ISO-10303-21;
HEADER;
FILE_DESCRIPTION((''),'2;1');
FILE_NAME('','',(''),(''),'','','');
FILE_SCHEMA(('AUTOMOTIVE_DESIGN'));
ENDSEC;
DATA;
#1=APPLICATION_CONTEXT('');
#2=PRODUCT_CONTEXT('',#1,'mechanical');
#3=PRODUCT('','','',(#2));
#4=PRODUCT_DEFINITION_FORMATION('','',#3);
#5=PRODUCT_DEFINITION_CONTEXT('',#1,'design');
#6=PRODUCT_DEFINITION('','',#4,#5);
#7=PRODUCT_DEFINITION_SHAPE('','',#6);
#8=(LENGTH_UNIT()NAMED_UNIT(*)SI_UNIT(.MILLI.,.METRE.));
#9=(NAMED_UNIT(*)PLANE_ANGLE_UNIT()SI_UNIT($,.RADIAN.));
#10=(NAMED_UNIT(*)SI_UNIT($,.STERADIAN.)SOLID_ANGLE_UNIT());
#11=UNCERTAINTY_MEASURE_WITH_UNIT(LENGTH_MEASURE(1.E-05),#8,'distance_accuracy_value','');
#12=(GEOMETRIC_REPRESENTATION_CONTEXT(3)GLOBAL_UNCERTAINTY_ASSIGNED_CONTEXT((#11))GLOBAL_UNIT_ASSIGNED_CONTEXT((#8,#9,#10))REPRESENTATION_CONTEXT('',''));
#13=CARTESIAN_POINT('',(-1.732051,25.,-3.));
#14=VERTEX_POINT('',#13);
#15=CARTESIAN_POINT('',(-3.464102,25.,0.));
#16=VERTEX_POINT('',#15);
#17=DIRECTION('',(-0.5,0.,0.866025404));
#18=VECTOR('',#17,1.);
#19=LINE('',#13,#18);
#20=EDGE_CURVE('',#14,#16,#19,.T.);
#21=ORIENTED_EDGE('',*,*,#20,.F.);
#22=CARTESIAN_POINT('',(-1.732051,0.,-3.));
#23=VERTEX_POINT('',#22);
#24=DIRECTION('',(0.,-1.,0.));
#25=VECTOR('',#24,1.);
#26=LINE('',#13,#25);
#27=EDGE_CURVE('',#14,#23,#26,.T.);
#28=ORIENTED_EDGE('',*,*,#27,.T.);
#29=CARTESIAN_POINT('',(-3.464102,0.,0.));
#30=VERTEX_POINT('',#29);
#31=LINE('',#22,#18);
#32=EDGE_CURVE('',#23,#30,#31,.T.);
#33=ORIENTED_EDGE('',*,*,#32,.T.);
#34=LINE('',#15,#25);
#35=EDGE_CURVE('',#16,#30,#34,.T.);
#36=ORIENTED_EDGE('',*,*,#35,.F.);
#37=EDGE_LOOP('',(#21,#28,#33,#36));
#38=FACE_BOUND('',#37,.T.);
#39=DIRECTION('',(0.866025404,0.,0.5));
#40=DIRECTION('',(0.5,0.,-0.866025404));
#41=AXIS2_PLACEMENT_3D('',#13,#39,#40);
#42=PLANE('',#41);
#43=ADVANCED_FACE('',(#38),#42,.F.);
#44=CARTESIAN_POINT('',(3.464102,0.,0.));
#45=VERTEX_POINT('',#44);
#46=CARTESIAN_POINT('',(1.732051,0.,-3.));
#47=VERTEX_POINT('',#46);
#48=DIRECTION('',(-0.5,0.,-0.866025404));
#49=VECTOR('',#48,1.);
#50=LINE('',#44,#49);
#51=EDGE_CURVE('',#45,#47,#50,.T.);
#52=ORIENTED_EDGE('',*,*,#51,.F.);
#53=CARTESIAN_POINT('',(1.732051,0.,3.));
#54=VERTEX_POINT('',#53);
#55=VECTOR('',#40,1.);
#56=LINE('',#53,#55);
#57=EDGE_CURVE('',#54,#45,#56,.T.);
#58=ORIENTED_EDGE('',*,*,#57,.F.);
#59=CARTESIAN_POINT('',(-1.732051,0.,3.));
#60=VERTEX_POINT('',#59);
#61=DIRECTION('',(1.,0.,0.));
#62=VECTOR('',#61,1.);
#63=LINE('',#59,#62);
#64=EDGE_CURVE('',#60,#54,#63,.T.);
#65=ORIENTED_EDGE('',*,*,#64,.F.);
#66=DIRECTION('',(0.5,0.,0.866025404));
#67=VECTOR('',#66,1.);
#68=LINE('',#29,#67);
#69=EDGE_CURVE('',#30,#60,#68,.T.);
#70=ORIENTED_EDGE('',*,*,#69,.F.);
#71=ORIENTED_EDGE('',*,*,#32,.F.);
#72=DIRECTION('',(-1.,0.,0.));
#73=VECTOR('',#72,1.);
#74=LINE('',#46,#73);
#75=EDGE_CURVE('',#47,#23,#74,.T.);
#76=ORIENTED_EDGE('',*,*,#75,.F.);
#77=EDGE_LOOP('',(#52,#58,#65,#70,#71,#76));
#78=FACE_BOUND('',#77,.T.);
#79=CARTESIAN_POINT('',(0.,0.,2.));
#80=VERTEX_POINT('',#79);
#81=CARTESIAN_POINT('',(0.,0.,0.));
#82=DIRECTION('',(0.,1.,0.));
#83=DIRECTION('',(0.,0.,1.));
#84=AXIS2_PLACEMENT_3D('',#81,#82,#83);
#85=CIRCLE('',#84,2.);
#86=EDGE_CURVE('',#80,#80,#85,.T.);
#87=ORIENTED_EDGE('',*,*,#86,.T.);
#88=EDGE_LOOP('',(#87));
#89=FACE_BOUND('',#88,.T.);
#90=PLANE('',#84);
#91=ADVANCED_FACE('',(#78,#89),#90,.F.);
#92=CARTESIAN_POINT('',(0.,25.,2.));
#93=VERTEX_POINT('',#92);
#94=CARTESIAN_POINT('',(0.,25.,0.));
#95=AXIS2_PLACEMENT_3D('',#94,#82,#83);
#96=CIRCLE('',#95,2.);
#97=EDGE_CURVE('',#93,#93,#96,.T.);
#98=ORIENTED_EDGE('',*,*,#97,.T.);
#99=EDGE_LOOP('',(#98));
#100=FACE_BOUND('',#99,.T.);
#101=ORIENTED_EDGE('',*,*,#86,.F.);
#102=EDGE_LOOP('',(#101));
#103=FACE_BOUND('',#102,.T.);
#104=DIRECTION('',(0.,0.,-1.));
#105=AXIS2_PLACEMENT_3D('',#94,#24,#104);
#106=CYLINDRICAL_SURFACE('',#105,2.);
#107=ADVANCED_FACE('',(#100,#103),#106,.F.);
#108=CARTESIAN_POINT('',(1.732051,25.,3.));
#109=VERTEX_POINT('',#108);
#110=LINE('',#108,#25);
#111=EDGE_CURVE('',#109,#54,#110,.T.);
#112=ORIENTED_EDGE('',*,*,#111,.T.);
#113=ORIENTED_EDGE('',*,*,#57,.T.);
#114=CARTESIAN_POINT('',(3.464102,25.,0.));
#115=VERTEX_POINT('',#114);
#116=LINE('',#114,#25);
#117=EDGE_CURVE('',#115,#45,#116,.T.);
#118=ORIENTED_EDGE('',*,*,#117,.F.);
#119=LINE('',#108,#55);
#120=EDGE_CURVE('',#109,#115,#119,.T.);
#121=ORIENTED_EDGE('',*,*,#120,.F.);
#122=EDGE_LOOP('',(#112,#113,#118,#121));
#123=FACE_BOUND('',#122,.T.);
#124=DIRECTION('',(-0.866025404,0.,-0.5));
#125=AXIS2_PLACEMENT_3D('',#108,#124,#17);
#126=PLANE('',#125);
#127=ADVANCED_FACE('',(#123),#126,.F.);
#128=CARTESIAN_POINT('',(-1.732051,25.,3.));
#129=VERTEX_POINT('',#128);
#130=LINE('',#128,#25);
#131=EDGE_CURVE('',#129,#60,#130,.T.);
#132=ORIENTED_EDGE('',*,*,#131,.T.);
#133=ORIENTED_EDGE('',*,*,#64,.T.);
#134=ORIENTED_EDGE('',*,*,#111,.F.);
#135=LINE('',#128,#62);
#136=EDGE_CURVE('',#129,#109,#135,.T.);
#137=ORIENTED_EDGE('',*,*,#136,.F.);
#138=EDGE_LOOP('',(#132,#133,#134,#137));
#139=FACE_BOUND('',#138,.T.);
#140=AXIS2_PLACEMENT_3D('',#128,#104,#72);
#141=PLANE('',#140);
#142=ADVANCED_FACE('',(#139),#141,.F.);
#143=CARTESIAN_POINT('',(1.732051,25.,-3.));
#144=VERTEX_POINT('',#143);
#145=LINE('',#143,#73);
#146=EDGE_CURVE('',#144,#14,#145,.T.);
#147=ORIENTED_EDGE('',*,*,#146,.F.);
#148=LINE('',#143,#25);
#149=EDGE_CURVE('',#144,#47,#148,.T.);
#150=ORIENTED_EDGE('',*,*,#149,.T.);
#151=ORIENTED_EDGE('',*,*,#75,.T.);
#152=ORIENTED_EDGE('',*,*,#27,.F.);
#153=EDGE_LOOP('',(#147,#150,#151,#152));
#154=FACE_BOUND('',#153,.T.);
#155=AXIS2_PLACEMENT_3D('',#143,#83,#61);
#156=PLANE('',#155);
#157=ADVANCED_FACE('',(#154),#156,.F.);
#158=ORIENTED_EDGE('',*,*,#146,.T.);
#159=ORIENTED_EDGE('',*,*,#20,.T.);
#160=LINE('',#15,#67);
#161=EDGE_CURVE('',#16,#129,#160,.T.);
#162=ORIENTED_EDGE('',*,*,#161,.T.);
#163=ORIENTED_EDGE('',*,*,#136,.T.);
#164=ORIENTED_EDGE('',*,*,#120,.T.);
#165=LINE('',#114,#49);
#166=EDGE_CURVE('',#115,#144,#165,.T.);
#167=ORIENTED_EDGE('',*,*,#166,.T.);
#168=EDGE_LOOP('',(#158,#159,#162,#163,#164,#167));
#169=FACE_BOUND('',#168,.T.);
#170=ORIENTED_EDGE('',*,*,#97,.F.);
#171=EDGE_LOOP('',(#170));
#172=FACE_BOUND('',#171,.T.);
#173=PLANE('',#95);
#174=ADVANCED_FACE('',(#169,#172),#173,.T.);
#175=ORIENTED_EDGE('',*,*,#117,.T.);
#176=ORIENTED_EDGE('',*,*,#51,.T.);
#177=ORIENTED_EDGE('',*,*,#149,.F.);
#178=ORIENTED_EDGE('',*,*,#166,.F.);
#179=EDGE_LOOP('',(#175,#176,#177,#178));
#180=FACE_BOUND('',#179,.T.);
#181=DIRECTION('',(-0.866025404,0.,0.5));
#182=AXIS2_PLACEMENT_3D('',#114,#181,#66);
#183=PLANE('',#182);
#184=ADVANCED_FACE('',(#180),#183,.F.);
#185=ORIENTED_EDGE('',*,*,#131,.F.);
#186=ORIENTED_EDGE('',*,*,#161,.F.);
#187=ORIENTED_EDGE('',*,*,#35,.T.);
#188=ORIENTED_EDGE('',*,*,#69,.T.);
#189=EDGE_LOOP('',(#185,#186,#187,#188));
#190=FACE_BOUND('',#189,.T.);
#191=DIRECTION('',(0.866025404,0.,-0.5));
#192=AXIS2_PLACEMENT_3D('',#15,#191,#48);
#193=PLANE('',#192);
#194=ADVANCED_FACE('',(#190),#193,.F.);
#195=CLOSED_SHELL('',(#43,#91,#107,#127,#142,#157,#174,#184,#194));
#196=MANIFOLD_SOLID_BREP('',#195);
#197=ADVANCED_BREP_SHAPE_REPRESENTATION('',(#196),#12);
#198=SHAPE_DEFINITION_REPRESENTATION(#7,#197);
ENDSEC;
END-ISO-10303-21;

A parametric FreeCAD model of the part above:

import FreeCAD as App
import Part
import Sketcher
Q = App.Units.Quantity

doc = App.newDocument("Part")
params = doc.addObject("Spreadsheet::Sheet", "Params")
for row, (alias, value) in enumerate([
    ("sketch1_diameter", "4 mm"),
    ("pad1_length", "25 mm"),
], start=1):
    params.set(f"A{row}", alias)
    params.set(f"B{row}", "=" + value)
    params.setAlias(f"B{row}", alias)

body = doc.addObject("PartDesign::Body", "Body")

# Sketch on XZ plane
sketch1 = doc.addObject("Sketcher::SketchObject", "Sketch")
body.addObject(sketch1)
sketch1.AttachmentSupport = (doc.XZ_Plane, [""])
sketch1.MapMode = "FlatFace"
sketch1.addGeometry(Part.LineSegment(App.Vector(-3.5, 0, 0), App.Vector(-1.7, 3, 0)), False)
sketch1.addGeometry(Part.LineSegment(App.Vector(-1.7, 3, 0), App.Vector(1.7, 3, 0)), False)
sketch1.addGeometry(Part.LineSegment(App.Vector(1.7, 3, 0), App.Vector(3.5, 0, 0)), False)
sketch1.addGeometry(Part.LineSegment(App.Vector(3.5, 0, 0), App.Vector(1.7, -3, 0)), False)
sketch1.addGeometry(Part.LineSegment(App.Vector(1.7, -3, 0), App.Vector(-1.7, -3, 0)), False)
sketch1.addGeometry(Part.LineSegment(App.Vector(-1.7, -3, 0), App.Vector(-3.5, 0, 0)), False)
sketch1.addGeometry(Part.Circle(App.Vector(0, 0, 0), App.Vector(0, 0, 1), 2), False)
sketch1.addConstraint(Sketcher.Constraint("Coincident", 0, 2, 1, 1))
sketch1.addConstraint(Sketcher.Constraint("Coincident", 1, 2, 2, 1))
sketch1.addConstraint(Sketcher.Constraint("Coincident", 2, 2, 3, 1))
sketch1.addConstraint(Sketcher.Constraint("Coincident", 3, 2, 4, 1))
sketch1.addConstraint(Sketcher.Constraint("Coincident", 4, 2, 5, 1))
sketch1.addConstraint(Sketcher.Constraint("Coincident", 5, 2, 0, 1))
sketch1.addConstraint(Sketcher.Constraint("Horizontal", 1))
sketch1.addConstraint(Sketcher.Constraint("Horizontal", 4))
sketch1.addConstraint(Sketcher.Constraint("Coincident", 6, 3, -1, 1))
sketch1.addConstraint(Sketcher.Constraint("Symmetric", 0, 2, 3, 2, -1, 1))
sketch1.addConstraint(Sketcher.Constraint("Symmetric", 2, 2, 5, 2, -1, 1))
sketch1.addConstraint(Sketcher.Constraint("PointOnObject", 2, 2, -1))
sketch1.addConstraint(Sketcher.Constraint("Parallel", 2, 5))
sketch1.addConstraint(Sketcher.Constraint("Vertical", 1, 2, 3, 2))
sketch1.addConstraint(Sketcher.Constraint("Diameter", 6, Q("4 mm")))
sketch1.addConstraint(Sketcher.Constraint("Angle", 0, Q("60 deg")))
sketch1.addConstraint(Sketcher.Constraint("DistanceY", -1, 1, 0, 2, Q("3 mm")))
sketch1.addConstraint(Sketcher.Constraint("DistanceX", 1, 1, 1, 2, Q("3.464102 mm")))
sketch1.setExpression("Constraints[14]", "Params.sketch1_diameter")
pad1 = doc.addObject("PartDesign::Pad", "Pad")
body.addObject(pad1)
pad1.Profile = sketch1
pad1.setExpression("Length", "Params.pad1_length")
pad1.Reversed = True

doc.recompute()
